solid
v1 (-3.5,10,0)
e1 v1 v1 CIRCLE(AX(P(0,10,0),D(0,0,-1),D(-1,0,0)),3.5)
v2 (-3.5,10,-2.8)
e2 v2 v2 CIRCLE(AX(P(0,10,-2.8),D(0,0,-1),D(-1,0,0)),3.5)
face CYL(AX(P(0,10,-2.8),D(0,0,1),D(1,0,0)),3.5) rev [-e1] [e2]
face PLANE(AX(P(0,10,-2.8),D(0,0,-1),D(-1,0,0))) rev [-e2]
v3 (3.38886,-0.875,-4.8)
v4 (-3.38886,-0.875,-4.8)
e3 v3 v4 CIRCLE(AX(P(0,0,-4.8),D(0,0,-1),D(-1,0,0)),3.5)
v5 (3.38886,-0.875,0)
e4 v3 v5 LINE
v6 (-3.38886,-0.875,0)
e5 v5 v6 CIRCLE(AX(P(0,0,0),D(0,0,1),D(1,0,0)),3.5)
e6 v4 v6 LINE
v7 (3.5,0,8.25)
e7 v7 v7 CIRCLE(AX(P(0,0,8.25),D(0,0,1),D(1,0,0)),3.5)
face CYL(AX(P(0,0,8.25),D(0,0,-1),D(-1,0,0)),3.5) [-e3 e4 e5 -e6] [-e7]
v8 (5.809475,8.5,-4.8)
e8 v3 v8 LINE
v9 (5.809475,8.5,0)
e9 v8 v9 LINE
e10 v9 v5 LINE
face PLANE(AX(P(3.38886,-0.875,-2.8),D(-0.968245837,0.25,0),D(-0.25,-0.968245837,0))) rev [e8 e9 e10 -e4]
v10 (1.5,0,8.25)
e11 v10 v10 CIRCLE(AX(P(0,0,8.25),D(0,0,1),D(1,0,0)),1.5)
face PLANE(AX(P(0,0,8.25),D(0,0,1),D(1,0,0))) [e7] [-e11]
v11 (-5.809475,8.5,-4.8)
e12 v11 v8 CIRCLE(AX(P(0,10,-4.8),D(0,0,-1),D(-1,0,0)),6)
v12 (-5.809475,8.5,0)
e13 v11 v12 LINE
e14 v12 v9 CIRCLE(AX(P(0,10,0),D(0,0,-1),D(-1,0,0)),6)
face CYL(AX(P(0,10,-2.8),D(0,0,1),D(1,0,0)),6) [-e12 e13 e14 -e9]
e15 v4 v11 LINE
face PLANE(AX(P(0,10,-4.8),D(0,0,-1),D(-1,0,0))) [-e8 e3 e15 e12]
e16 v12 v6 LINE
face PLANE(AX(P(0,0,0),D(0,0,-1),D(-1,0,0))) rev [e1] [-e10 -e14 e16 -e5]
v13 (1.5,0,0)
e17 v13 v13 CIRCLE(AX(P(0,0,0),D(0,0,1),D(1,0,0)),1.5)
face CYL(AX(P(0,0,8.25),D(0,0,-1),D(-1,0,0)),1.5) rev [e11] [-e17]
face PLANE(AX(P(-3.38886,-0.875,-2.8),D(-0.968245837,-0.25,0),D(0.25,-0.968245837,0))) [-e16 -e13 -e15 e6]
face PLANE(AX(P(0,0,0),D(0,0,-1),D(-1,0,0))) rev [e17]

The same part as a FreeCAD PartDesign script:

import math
import FreeCAD as App
import Part
import Sketcher
from FreeCAD import Vector
Q = App.Units.Quantity

doc = App.newDocument("Part")
body = doc.addObject("PartDesign::Body", "Body")

# Sketch on XY plane
sketch1 = body.newObject("Sketcher::SketchObject", "Sketch")
sketch1.AttachmentSupport = (doc.getObject("XY_Plane"), [""])
sketch1.MapMode = "FlatFace"
sketch1.addGeometry([
    Part.Circle(Vector(0, 0, 0), Vector(0, 0, 1), 3.5),
    Part.Circle(Vector(0, 0, 0), Vector(0, 0, 1), 1.5),
], False)
sketch1.addConstraint([
    Sketcher.Constraint("Coincident", 0, 3, -1, 1),
    Sketcher.Constraint("Coincident", 1, 3, -1, 1),
    Sketcher.Constraint("Diameter", 0, Q("7 mm")),
    Sketcher.Constraint("Diameter", 1, Q("3 mm")),
])
pad1 = body.newObject("PartDesign::Pad", "Pad")
pad1.Profile = sketch1
pad1.Length = 8.25

# Sketch on XY plane
sketch2 = body.newObject("Sketcher::SketchObject", "Sketch001")
sketch2.AttachmentSupport = (doc.getObject("XY_Plane"), [""])
sketch2.MapMode = "FlatFace"
sketch2.AttachmentOffset = App.Placement(Vector(0, 0, -2.8), App.Rotation())
sketch2.addGeometry([
    Part.LineSegment(Vector(5.8, 8.5, 0), Vector(3.4, -0.9, 0)),  # 0
    Part.ArcOfCircle(Part.Circle(Vector(0, 0, 0), Vector(0, 0, 1), 3.5), math.radians(-166), math.radians(-14)),  # 1
    Part.LineSegment(Vector(-3.4, -0.9, 0), Vector(-5.8, 8.5, 0)),  # 2
    Part.ArcOfCircle(Part.Circle(Vector(0, 10, 0), Vector(0, 0, 1), 6), math.radians(-14), math.radians(194)),  # 3
    Part.Circle(Vector(0, 10, 0), Vector(0, 0, 1), 3.5),  # 4
], False)
sketch2.addConstraint([
    Sketcher.Constraint("Tangent", 0, 2, 1, 2),
    Sketcher.Constraint("Tangent", 1, 1, 2, 1),
    Sketcher.Constraint("Tangent", 2, 2, 3, 2),
    Sketcher.Constraint("Tangent", 3, 1, 0, 1),
    Sketcher.Constraint("Coincident", 1, 3, -1, 1),
    Sketcher.Constraint("Coincident", 4, 3, 3, 3),
    Sketcher.Constraint("Equal", 1, 4),
    Sketcher.Constraint("PointOnObject", 3, 3, -2),
    Sketcher.Constraint("Diameter", 4, Q("7 mm")),
    Sketcher.Constraint("Radius", 3, Q("6 mm")),
    Sketcher.Constraint("DistanceY", -1, 1, 3, 3, Q("10 mm")),
])
pad2 = body.newObject("PartDesign::Pad", "Pad001")
pad2.Profile = sketch2
pad2.Length = 2.8

# Sketch on XY plane
sketch3 = body.newObject("Sketcher::SketchObject", "Sketch002")
sketch3.AttachmentSupport = (doc.getObject("XY_Plane"), [""])
sketch3.MapMode = "FlatFace"
sketch3.AttachmentOffset = App.Placement(Vector(0, 0, -4.8), App.Rotation())
sketch3.addGeometry([
    Part.LineSegment(Vector(5.8, 8.5, 0), Vector(3.4, -0.9, 0)),
    Part.ArcOfCircle(Part.Circle(Vector(0, 0, 0), Vector(0, 0, 1), 3.5), math.radians(-166), math.radians(-14)),
    Part.LineSegment(Vector(-3.4, -0.9, 0), Vector(-5.8, 8.5, 0)),
    Part.ArcOfCircle(Part.Circle(Vector(0, 10, 0), Vector(0, 0, 1), 6), math.radians(-14), math.radians(194)),
], False)
sketch3.addConstraint([
    Sketcher.Constraint("Tangent", 0, 2, 1, 2),
    Sketcher.Constraint("Tangent", 1, 1, 2, 1),
    Sketcher.Constraint("Tangent", 2, 2, 3, 2),
    Sketcher.Constraint("Tangent", 3, 1, 0, 1),
    Sketcher.Constraint("Coincident", 1, 3, -1, 1),
    Sketcher.Constraint("PointOnObject", 3, 3, -2),
    Sketcher.Constraint("Radius", 3, Q("6 mm")),
    Sketcher.Constraint("Radius", 1, Q("3.5 mm")),
    Sketcher.Constraint("DistanceY", -1, 1, 3, 3, Q("10 mm")),
])
pad3 = body.newObject("PartDesign::Pad", "Pad002")
pad3.Profile = sketch3
pad3.Length = 2

doc.recompute()
